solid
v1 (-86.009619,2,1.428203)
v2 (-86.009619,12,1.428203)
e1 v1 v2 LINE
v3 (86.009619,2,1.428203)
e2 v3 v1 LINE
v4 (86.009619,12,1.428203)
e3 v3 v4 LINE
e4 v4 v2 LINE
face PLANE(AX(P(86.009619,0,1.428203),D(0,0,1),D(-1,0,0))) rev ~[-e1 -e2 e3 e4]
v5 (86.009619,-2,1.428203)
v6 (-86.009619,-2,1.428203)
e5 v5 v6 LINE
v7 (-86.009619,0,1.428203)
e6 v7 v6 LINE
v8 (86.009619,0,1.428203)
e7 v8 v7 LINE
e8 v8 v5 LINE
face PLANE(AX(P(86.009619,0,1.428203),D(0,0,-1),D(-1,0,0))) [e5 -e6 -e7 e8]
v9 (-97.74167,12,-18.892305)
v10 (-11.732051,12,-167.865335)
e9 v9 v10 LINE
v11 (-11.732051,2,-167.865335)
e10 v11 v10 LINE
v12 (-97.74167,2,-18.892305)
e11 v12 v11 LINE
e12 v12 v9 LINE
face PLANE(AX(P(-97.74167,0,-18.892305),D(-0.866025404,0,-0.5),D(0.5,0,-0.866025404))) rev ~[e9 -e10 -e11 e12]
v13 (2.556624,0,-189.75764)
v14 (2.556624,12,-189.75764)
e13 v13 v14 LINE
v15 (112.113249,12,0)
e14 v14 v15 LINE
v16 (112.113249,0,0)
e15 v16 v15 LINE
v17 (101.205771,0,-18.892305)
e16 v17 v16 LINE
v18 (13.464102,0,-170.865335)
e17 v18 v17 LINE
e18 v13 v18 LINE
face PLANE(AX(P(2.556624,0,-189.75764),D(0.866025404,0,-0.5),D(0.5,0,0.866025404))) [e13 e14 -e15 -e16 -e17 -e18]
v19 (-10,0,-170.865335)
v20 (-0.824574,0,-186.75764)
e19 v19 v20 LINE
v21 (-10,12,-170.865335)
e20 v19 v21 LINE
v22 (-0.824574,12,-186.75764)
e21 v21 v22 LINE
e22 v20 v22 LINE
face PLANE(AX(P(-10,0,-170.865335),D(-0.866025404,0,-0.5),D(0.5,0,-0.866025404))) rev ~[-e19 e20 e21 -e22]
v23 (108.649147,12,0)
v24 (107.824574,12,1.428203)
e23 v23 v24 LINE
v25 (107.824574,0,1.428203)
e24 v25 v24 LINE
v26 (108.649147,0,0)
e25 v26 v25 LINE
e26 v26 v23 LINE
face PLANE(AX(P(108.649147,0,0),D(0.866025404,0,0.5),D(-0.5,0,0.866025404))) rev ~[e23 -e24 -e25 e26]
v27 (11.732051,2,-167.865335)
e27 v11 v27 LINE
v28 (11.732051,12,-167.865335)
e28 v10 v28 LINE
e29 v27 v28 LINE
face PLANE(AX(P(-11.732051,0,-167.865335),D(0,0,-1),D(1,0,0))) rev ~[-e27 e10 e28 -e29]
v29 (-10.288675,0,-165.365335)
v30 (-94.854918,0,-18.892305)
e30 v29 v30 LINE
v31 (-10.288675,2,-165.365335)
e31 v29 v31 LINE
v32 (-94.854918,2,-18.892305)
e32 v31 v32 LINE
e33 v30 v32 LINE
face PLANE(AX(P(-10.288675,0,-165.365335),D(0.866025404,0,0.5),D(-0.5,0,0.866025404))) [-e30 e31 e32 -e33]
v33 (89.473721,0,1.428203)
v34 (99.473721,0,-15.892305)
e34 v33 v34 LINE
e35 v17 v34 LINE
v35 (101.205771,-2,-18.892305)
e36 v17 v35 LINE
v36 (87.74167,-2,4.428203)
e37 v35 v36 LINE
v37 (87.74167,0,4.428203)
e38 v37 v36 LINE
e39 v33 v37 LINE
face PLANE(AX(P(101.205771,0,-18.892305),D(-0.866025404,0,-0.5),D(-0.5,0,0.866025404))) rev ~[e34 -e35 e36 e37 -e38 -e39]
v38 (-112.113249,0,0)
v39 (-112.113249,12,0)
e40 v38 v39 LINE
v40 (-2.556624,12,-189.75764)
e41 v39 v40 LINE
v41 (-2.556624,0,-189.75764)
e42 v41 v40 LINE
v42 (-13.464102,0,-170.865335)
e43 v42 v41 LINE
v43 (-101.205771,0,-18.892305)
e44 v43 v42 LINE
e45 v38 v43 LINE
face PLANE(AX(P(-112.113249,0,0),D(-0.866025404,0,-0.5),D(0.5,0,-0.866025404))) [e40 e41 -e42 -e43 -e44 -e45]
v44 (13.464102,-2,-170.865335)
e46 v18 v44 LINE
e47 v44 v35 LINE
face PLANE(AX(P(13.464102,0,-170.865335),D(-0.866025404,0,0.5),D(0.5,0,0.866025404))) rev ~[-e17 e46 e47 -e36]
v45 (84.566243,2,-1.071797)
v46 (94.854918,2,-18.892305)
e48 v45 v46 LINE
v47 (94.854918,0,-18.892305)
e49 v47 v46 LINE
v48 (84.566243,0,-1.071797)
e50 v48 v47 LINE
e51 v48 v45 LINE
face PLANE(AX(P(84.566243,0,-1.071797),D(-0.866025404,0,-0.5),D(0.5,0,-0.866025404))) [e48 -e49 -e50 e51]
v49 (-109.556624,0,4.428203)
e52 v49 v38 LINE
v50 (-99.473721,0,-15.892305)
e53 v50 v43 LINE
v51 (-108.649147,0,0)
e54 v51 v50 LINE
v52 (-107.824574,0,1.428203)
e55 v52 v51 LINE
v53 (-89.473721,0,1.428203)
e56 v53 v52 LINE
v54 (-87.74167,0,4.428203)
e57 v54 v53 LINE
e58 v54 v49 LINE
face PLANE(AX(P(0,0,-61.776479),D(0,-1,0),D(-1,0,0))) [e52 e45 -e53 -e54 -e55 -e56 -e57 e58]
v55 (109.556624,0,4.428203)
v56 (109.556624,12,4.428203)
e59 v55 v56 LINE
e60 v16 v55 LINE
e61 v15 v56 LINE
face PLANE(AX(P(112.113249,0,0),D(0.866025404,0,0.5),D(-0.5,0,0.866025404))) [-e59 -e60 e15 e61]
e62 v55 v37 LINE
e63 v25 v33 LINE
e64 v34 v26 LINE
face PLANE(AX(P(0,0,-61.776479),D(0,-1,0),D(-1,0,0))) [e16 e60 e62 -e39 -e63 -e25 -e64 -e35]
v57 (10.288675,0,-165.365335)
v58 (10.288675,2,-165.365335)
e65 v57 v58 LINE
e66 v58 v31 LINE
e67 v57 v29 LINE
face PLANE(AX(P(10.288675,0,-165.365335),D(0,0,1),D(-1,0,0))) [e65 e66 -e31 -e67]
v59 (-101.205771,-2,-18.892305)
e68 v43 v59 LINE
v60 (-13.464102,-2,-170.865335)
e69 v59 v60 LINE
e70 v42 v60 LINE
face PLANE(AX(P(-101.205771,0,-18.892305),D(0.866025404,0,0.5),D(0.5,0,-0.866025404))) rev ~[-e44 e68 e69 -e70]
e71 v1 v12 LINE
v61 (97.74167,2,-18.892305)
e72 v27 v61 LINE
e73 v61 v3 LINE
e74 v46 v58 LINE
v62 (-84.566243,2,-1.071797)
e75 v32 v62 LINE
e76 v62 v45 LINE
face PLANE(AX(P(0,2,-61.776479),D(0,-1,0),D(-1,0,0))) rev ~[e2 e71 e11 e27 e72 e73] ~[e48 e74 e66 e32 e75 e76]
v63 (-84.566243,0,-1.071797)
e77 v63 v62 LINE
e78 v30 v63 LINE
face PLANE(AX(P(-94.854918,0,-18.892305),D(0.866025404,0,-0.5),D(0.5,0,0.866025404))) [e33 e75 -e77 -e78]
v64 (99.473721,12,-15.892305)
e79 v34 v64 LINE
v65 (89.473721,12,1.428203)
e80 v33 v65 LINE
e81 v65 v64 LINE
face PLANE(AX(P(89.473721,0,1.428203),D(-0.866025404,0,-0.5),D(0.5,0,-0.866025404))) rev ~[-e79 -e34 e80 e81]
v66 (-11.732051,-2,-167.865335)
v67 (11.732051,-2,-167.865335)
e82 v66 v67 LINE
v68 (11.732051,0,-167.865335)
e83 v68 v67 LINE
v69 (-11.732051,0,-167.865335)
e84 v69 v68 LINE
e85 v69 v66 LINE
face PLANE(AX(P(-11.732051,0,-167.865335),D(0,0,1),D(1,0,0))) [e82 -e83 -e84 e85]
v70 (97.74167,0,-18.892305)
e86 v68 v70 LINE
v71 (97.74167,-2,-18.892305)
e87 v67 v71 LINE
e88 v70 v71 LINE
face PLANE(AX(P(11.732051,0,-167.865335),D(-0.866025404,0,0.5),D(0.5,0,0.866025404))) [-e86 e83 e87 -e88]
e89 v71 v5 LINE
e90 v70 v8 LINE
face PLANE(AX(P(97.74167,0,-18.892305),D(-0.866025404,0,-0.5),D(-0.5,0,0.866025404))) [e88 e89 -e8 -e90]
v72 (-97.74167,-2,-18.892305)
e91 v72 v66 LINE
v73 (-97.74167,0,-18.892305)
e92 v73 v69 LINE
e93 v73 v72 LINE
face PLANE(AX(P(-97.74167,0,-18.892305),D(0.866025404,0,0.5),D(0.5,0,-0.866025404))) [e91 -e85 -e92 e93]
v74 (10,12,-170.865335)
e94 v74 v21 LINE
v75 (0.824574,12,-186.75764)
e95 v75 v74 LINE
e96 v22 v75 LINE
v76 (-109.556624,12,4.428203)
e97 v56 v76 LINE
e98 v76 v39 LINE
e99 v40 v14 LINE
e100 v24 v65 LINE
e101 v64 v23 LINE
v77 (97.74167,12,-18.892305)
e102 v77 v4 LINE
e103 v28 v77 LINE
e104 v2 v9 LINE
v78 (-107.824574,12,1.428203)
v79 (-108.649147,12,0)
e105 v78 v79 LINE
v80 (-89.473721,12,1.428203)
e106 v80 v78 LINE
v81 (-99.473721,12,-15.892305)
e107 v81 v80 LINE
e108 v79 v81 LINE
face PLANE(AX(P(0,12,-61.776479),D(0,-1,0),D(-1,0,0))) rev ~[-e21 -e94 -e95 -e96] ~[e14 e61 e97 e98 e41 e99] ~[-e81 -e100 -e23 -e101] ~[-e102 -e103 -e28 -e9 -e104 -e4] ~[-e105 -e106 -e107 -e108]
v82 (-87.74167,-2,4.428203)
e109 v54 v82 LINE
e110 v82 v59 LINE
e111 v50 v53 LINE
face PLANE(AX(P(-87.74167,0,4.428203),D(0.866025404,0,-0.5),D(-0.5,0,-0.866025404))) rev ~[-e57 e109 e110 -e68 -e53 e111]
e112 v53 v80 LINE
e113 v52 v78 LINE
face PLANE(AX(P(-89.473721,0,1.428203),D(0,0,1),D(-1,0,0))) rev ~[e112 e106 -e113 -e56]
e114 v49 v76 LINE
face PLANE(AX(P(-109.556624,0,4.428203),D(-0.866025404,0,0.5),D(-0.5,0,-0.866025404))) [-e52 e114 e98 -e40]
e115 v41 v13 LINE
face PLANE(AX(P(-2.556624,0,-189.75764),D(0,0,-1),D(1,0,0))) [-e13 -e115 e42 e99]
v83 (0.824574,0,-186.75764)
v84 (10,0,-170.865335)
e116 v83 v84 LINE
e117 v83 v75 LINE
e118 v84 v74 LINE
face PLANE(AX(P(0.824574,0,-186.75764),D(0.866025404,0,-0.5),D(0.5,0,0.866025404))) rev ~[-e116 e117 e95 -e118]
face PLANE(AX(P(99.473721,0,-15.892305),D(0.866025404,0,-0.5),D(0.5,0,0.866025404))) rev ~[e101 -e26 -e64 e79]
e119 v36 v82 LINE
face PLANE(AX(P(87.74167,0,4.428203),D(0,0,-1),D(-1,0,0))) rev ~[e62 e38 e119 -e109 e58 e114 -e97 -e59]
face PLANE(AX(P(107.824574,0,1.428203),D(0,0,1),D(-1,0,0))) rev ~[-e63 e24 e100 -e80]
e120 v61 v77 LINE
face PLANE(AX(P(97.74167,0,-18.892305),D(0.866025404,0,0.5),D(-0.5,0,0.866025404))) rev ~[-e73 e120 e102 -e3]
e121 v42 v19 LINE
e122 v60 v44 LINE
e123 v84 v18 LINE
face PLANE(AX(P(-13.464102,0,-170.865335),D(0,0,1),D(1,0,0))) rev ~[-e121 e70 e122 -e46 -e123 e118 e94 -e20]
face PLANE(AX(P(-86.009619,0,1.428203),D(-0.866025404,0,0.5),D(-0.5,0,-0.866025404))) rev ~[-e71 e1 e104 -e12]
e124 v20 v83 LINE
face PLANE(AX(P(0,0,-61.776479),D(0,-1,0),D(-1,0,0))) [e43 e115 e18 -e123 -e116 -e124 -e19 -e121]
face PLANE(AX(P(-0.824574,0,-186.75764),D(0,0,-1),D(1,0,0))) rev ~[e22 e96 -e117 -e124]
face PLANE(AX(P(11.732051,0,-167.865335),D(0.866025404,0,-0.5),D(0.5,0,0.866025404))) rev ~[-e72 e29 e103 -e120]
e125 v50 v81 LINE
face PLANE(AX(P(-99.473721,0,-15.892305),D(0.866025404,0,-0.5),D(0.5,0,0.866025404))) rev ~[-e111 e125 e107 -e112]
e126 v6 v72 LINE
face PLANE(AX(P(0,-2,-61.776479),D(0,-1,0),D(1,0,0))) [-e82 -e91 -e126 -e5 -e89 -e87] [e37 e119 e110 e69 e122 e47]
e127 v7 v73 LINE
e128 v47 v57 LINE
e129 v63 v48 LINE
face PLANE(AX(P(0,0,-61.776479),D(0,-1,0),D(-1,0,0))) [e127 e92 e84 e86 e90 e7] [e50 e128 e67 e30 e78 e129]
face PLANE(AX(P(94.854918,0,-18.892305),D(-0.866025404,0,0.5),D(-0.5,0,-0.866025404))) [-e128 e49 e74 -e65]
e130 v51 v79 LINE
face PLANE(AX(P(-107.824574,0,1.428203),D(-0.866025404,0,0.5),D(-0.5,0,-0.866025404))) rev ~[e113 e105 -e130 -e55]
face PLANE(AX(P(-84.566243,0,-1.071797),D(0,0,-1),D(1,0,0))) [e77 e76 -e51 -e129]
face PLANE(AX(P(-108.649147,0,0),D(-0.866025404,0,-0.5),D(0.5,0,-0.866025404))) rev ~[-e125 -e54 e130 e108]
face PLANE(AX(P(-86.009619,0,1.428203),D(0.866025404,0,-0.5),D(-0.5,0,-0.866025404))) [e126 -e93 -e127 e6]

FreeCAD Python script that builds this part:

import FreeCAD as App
import Part
import Sketcher
from FreeCAD import Vector
Q = App.Units.Quantity


def add_polygon(sketch, points):
    """Adds a closed chain of lines whose ends are joined by coincident constraints."""
    first, n = sketch.GeometryCount, len(points)
    for a, b in zip(points, points[1:] + points[:1]):
        sketch.addGeometry(Part.LineSegment(App.Vector(*a, 0), App.Vector(*b, 0)), False)
    for i in range(n):
        sketch.addConstraint(Sketcher.Constraint("Coincident", first + i, 2, first + (i + 1) % n, 1))

doc = App.newDocument("Part")
body = doc.addObject("PartDesign::Body", "Body")

# Sketch on XZ plane
sketch1 = body.newObject("Sketcher::SketchObject", "Sketch")
sketch1.AttachmentSupport = (doc.getObject("XZ_Plane"), [""])
sketch1.MapMode = "FlatFace"
add_polygon(sketch1, [(-109.556624, 4.428203), (109.556624, 4.428203), (112.113249, 0), (2.556624, -189.75764), (-2.556624, -189.75764), (-112.113249, 0)])  # lines 0-5
add_polygon(sketch1, [(108.649147, 0), (107.824574, 1.428203), (89.473721, 1.428203), (99.473721, -15.892305)])  # lines 6-9
add_polygon(sketch1, [(-107.824574, 1.428203), (-108.649147, 0), (-99.473721, -15.892305), (-89.473721, 1.428203)])  # lines 10-13
add_polygon(sketch1, [(-11.732051, -167.865335), (11.732051, -167.865335), (97.74167, -18.892305), (86.009619, 1.428203), (-86.009619, 1.428203), (-97.74167, -18.892305)])  # lines 14-19
add_polygon(sketch1, [(-0.824574, -186.75764), (0.824574, -186.75764), (10, -170.865335), (-10, -170.865335)])  # lines 20-23
sketch1.addConstraint(Sketcher.Constraint("Horizontal", 0))
sketch1.addConstraint(Sketcher.Constraint("Horizontal", 3))
sketch1.addConstraint(Sketcher.Constraint("Horizontal", 7))
sketch1.addConstraint(Sketcher.Constraint("Horizontal", 13))
sketch1.addConstraint(Sketcher.Constraint("Horizontal", 14))
sketch1.addConstraint(Sketcher.Constraint("Horizontal", 17))
sketch1.addConstraint(Sketcher.Constraint("Horizontal", 20))
sketch1.addConstraint(Sketcher.Constraint("Horizontal", 22))
sketch1.addConstraint(Sketcher.Constraint("Symmetric", 1, 2, 4, 2, -1, 1))
sketch1.addConstraint(Sketcher.Constraint("Symmetric", 9, 2, 10, 2, -1, 1))
sketch1.addConstraint(Sketcher.Constraint("Symmetric", 8, 2, 11, 2, -2))
sketch1.addConstraint(Sketcher.Constraint("Symmetric", 7, 2, 12, 2, -2))
sketch1.addConstraint(Sketcher.Constraint("Symmetric", 15, 2, 18, 2, -2))
sketch1.addConstraint(Sketcher.Constraint("PointOnObject", 1, 2, -1))
sketch1.addConstraint(Sketcher.Constraint("PointOnObject", 9, 2, -1))
sketch1.addConstraint(Sketcher.Constraint("Parallel", 1, 4))
sketch1.addConstraint(Sketcher.Constraint("Parallel", 2, 5))
sketch1.addConstraint(Sketcher.Constraint("Parallel", 4, 6))
sketch1.addConstraint(Sketcher.Constraint("Parallel", 6, 8))
sketch1.addConstraint(Sketcher.Constraint("Parallel", 5, 9))
sketch1.addConstraint(Sketcher.Constraint("Parallel", 9, 10))
sketch1.addConstraint(Sketcher.Constraint("Parallel", 8, 11))
sketch1.addConstraint(Sketcher.Constraint("Parallel", 12, 15))
sketch1.addConstraint(Sketcher.Constraint("Parallel", 11, 16))
sketch1.addConstraint(Sketcher.Constraint("Parallel", 15, 18))
sketch1.addConstraint(Sketcher.Constraint("Parallel", 16, 19))
sketch1.addConstraint(Sketcher.Constraint("Parallel", 18, 21))
sketch1.addConstraint(Sketcher.Constraint("Parallel", 19, 23))
sketch1.addConstraint(Sketcher.Constraint("Horizontal", 13, 2, 16, 2))
sketch1.addConstraint(Sketcher.Constraint("Equal", 11, 21))
sketch1.addConstraint(Sketcher.Constraint("DistanceX", 22, 2, 22, 1, Q("20 mm")))
sketch1.addConstraint(Sketcher.Constraint("Angle", 1, Q("-60 deg")))
sketch1.addConstraint(Sketcher.Constraint("Distance", 8, Q("20 mm")))
sketch1.addConstraint(Sketcher.Constraint("DistanceX", -1, 1, 21, 2, Q("10 mm")))
sketch1.addConstraint(Sketcher.Constraint("DistanceX", 2, 2, 0, 2, Q("107 mm")))
sketch1.addConstraint(Sketcher.Constraint("DistanceY", 6, 2, 0, 2, Q("3 mm")))
sketch1.addConstraint(Sketcher.Constraint("DistanceY", 15, 2, 8, 2, Q("3 mm")))
sketch1.addConstraint(Sketcher.Constraint("DistanceY", 2, 2, 20, 2, Q("3 mm")))
sketch1.addConstraint(Sketcher.Constraint("DistanceY", 21, 2, 14, 2, Q("3 mm")))
sketch1.addConstraint(Sketcher.Constraint("DistanceX", 14, 1, 14, 2, Q("23.464102 mm")))
sketch1.addConstraint(Sketcher.Constraint("DistanceX", 0, 1, 0, 2, Q("219.113249 mm")))
sketch1.addConstraint(Sketcher.Constraint("DistanceX", 9, 2, 1, 2, Q("3.464102 mm")))
sketch1.addConstraint(Sketcher.Constraint("DistanceX", 16, 2, 7, 2, Q("3.464102 mm")))
pad1 = body.newObject("PartDesign::Pad", "Pad")
pad1.Profile = sketch1
pad1.Length = 12
pad1.Reversed = True

# Sketch on XZ plane
sketch2 = body.newObject("Sketcher::SketchObject", "Sketch001")
sketch2.AttachmentSupport = (doc.getObject("XZ_Plane"), [""])
sketch2.MapMode = "FlatFace"
add_polygon(sketch2, [(-11.732051, -167.865335), (-97.74167, -18.892305), (-86.009619, 1.428203), (86.009619, 1.428203), (97.74167, -18.892305), (11.732051, -167.865335)])  # lines 0-5
add_polygon(sketch2, [(-10.288675, -165.365335), (10.288675, -165.365335), (94.854918, -18.892305), (84.566243, -1.071797), (-84.566243, -1.071797), (-94.854918, -18.892305)])  # lines 6-11
sketch2.addConstraint(Sketcher.Constraint("Horizontal", 2))
sketch2.addConstraint(Sketcher.Constraint("Horizontal", 5))
sketch2.addConstraint(Sketcher.Constraint("Horizontal", 6))
sketch2.addConstraint(Sketcher.Constraint("Horizontal", 9))
sketch2.addConstraint(Sketcher.Constraint("Symmetric", 0, 2, 3, 2, -2))
sketch2.addConstraint(Sketcher.Constraint("Symmetric", 7, 2, 10, 2, -2))
sketch2.addConstraint(Sketcher.Constraint("Parallel", 0, 3))
sketch2.addConstraint(Sketcher.Constraint("Parallel", 1, 4))
sketch2.addConstraint(Sketcher.Constraint("Parallel", 4, 7))
sketch2.addConstraint(Sketcher.Constraint("Parallel", 3, 8))
sketch2.addConstraint(Sketcher.Constraint("Parallel", 7, 10))
sketch2.addConstraint(Sketcher.Constraint("Parallel", 8, 11))
sketch2.addConstraint(Sketcher.Constraint("Horizontal", 3, 2, 7, 2))
sketch2.addConstraint(Sketcher.Constraint("Equal", 1, 3))
sketch2.addConstraint(Sketcher.Constraint("Angle", 0, Q("120 deg")))
sketch2.addConstraint(Sketcher.Constraint("DistanceY", 4, 2, 6, 2, Q("2.5 mm")))
sketch2.addConstraint(Sketcher.Constraint("DistanceY", 8, 2, 2, 2, Q("2.5 mm")))
sketch2.addConstraint(Sketcher.Constraint("DistanceX", 5, 2, 5, 1, Q("23.464102 mm")))
sketch2.addConstraint(Sketcher.Constraint("Distance", 1, Q("23.464102 mm")))
sketch2.addConstraint(Sketcher.Constraint("DistanceX", 6, 1, 6, 2, Q("20.57735 mm")))
sketch2.addConstraint(Sketcher.Constraint("DistanceX", 2, 1, 2, 2, Q("172.019238 mm")))
sketch2.addConstraint(Sketcher.Constraint("DistanceY", 0, 2, -1, 1, Q("18.892305 mm")))
pad2 = body.newObject("PartDesign::Pad", "Pad001")
pad2.Profile = sketch2
pad2.Length = 2
pad2.Reversed = True

# Sketch on XZ plane
sketch3 = body.newObject("Sketcher::SketchObject", "Sketch002")
sketch3.AttachmentSupport = (doc.getObject("XZ_Plane"), [""])
sketch3.MapMode = "FlatFace"
add_polygon(sketch3, [(101.205771, -18.892305), (87.74167, 4.428203), (-87.74167, 4.428203), (-101.205771, -18.892305), (-13.464102, -170.865335), (13.464102, -170.865335)])  # lines 0-5
add_polygon(sketch3, [(11.732051, -167.865335), (-11.732051, -167.865335), (-97.74167, -18.892305), (-86.009619, 1.428203), (86.009619, 1.428203), (97.74167, -18.892305)])  # lines 6-11
sketch3.addConstraint(Sketcher.Constraint("Horizontal", 1))
sketch3.addConstraint(Sketcher.Constraint("Horizontal", 4))
sketch3.addConstraint(Sketcher.Constraint("Horizontal", 6))
sketch3.addConstraint(Sketcher.Constraint("Horizontal", 9))
sketch3.addConstraint(Sketcher.Constraint("Symmetric", 2, 2, 5, 2, -2))
sketch3.addConstraint(Sketcher.Constraint("Symmetric", 7, 2, 10, 2, -2))
sketch3.addConstraint(Sketcher.Constraint("Parallel", 0, 3))
sketch3.addConstraint(Sketcher.Constraint("Parallel", 2, 5))
sketch3.addConstraint(Sketcher.Constraint("Parallel", 3, 7))
sketch3.addConstraint(Sketcher.Constraint("Parallel", 5, 8))
sketch3.addConstraint(Sketcher.Constraint("Parallel", 7, 10))
sketch3.addConstraint(Sketcher.Constraint("Parallel", 8, 11))
sketch3.addConstraint(Sketcher.Constraint("Horizontal", 5, 2, 7, 2))
sketch3.addConstraint(Sketcher.Constraint("Equal", 0, 2))
sketch3.addConstraint(Sketcher.Constraint("Angle", 0, Q("120 deg")))
sketch3.addConstraint(Sketcher.Constraint("DistanceY", 3, 2, 6, 2, Q("3 mm")))
sketch3.addConstraint(Sketcher.Constraint("DistanceX", 7, 2, 1, 2, Q("10 mm")))
sketch3.addConstraint(Sketcher.Constraint("DistanceY", 8, 2, 1, 2, Q("3 mm")))
sketch3.addConstraint(Sketcher.Constraint("DistanceX", 6, 2, 6, 1, Q("23.464102 mm")))
sketch3.addConstraint(Sketcher.Constraint("Distance", 8, Q("23.464102 mm")))
sketch3.addConstraint(Sketcher.Constraint("DistanceX", 1, 2, 1, 1, Q("175.48334 mm")))
sketch3.addConstraint(Sketcher.Constraint("DistanceY", -1, 1, 0, 2, Q("4.428203 mm")))
pad3 = body.newObject("PartDesign::Pad", "Pad002")
pad3.Profile = sketch3
pad3.Length = 2

doc.recompute()
